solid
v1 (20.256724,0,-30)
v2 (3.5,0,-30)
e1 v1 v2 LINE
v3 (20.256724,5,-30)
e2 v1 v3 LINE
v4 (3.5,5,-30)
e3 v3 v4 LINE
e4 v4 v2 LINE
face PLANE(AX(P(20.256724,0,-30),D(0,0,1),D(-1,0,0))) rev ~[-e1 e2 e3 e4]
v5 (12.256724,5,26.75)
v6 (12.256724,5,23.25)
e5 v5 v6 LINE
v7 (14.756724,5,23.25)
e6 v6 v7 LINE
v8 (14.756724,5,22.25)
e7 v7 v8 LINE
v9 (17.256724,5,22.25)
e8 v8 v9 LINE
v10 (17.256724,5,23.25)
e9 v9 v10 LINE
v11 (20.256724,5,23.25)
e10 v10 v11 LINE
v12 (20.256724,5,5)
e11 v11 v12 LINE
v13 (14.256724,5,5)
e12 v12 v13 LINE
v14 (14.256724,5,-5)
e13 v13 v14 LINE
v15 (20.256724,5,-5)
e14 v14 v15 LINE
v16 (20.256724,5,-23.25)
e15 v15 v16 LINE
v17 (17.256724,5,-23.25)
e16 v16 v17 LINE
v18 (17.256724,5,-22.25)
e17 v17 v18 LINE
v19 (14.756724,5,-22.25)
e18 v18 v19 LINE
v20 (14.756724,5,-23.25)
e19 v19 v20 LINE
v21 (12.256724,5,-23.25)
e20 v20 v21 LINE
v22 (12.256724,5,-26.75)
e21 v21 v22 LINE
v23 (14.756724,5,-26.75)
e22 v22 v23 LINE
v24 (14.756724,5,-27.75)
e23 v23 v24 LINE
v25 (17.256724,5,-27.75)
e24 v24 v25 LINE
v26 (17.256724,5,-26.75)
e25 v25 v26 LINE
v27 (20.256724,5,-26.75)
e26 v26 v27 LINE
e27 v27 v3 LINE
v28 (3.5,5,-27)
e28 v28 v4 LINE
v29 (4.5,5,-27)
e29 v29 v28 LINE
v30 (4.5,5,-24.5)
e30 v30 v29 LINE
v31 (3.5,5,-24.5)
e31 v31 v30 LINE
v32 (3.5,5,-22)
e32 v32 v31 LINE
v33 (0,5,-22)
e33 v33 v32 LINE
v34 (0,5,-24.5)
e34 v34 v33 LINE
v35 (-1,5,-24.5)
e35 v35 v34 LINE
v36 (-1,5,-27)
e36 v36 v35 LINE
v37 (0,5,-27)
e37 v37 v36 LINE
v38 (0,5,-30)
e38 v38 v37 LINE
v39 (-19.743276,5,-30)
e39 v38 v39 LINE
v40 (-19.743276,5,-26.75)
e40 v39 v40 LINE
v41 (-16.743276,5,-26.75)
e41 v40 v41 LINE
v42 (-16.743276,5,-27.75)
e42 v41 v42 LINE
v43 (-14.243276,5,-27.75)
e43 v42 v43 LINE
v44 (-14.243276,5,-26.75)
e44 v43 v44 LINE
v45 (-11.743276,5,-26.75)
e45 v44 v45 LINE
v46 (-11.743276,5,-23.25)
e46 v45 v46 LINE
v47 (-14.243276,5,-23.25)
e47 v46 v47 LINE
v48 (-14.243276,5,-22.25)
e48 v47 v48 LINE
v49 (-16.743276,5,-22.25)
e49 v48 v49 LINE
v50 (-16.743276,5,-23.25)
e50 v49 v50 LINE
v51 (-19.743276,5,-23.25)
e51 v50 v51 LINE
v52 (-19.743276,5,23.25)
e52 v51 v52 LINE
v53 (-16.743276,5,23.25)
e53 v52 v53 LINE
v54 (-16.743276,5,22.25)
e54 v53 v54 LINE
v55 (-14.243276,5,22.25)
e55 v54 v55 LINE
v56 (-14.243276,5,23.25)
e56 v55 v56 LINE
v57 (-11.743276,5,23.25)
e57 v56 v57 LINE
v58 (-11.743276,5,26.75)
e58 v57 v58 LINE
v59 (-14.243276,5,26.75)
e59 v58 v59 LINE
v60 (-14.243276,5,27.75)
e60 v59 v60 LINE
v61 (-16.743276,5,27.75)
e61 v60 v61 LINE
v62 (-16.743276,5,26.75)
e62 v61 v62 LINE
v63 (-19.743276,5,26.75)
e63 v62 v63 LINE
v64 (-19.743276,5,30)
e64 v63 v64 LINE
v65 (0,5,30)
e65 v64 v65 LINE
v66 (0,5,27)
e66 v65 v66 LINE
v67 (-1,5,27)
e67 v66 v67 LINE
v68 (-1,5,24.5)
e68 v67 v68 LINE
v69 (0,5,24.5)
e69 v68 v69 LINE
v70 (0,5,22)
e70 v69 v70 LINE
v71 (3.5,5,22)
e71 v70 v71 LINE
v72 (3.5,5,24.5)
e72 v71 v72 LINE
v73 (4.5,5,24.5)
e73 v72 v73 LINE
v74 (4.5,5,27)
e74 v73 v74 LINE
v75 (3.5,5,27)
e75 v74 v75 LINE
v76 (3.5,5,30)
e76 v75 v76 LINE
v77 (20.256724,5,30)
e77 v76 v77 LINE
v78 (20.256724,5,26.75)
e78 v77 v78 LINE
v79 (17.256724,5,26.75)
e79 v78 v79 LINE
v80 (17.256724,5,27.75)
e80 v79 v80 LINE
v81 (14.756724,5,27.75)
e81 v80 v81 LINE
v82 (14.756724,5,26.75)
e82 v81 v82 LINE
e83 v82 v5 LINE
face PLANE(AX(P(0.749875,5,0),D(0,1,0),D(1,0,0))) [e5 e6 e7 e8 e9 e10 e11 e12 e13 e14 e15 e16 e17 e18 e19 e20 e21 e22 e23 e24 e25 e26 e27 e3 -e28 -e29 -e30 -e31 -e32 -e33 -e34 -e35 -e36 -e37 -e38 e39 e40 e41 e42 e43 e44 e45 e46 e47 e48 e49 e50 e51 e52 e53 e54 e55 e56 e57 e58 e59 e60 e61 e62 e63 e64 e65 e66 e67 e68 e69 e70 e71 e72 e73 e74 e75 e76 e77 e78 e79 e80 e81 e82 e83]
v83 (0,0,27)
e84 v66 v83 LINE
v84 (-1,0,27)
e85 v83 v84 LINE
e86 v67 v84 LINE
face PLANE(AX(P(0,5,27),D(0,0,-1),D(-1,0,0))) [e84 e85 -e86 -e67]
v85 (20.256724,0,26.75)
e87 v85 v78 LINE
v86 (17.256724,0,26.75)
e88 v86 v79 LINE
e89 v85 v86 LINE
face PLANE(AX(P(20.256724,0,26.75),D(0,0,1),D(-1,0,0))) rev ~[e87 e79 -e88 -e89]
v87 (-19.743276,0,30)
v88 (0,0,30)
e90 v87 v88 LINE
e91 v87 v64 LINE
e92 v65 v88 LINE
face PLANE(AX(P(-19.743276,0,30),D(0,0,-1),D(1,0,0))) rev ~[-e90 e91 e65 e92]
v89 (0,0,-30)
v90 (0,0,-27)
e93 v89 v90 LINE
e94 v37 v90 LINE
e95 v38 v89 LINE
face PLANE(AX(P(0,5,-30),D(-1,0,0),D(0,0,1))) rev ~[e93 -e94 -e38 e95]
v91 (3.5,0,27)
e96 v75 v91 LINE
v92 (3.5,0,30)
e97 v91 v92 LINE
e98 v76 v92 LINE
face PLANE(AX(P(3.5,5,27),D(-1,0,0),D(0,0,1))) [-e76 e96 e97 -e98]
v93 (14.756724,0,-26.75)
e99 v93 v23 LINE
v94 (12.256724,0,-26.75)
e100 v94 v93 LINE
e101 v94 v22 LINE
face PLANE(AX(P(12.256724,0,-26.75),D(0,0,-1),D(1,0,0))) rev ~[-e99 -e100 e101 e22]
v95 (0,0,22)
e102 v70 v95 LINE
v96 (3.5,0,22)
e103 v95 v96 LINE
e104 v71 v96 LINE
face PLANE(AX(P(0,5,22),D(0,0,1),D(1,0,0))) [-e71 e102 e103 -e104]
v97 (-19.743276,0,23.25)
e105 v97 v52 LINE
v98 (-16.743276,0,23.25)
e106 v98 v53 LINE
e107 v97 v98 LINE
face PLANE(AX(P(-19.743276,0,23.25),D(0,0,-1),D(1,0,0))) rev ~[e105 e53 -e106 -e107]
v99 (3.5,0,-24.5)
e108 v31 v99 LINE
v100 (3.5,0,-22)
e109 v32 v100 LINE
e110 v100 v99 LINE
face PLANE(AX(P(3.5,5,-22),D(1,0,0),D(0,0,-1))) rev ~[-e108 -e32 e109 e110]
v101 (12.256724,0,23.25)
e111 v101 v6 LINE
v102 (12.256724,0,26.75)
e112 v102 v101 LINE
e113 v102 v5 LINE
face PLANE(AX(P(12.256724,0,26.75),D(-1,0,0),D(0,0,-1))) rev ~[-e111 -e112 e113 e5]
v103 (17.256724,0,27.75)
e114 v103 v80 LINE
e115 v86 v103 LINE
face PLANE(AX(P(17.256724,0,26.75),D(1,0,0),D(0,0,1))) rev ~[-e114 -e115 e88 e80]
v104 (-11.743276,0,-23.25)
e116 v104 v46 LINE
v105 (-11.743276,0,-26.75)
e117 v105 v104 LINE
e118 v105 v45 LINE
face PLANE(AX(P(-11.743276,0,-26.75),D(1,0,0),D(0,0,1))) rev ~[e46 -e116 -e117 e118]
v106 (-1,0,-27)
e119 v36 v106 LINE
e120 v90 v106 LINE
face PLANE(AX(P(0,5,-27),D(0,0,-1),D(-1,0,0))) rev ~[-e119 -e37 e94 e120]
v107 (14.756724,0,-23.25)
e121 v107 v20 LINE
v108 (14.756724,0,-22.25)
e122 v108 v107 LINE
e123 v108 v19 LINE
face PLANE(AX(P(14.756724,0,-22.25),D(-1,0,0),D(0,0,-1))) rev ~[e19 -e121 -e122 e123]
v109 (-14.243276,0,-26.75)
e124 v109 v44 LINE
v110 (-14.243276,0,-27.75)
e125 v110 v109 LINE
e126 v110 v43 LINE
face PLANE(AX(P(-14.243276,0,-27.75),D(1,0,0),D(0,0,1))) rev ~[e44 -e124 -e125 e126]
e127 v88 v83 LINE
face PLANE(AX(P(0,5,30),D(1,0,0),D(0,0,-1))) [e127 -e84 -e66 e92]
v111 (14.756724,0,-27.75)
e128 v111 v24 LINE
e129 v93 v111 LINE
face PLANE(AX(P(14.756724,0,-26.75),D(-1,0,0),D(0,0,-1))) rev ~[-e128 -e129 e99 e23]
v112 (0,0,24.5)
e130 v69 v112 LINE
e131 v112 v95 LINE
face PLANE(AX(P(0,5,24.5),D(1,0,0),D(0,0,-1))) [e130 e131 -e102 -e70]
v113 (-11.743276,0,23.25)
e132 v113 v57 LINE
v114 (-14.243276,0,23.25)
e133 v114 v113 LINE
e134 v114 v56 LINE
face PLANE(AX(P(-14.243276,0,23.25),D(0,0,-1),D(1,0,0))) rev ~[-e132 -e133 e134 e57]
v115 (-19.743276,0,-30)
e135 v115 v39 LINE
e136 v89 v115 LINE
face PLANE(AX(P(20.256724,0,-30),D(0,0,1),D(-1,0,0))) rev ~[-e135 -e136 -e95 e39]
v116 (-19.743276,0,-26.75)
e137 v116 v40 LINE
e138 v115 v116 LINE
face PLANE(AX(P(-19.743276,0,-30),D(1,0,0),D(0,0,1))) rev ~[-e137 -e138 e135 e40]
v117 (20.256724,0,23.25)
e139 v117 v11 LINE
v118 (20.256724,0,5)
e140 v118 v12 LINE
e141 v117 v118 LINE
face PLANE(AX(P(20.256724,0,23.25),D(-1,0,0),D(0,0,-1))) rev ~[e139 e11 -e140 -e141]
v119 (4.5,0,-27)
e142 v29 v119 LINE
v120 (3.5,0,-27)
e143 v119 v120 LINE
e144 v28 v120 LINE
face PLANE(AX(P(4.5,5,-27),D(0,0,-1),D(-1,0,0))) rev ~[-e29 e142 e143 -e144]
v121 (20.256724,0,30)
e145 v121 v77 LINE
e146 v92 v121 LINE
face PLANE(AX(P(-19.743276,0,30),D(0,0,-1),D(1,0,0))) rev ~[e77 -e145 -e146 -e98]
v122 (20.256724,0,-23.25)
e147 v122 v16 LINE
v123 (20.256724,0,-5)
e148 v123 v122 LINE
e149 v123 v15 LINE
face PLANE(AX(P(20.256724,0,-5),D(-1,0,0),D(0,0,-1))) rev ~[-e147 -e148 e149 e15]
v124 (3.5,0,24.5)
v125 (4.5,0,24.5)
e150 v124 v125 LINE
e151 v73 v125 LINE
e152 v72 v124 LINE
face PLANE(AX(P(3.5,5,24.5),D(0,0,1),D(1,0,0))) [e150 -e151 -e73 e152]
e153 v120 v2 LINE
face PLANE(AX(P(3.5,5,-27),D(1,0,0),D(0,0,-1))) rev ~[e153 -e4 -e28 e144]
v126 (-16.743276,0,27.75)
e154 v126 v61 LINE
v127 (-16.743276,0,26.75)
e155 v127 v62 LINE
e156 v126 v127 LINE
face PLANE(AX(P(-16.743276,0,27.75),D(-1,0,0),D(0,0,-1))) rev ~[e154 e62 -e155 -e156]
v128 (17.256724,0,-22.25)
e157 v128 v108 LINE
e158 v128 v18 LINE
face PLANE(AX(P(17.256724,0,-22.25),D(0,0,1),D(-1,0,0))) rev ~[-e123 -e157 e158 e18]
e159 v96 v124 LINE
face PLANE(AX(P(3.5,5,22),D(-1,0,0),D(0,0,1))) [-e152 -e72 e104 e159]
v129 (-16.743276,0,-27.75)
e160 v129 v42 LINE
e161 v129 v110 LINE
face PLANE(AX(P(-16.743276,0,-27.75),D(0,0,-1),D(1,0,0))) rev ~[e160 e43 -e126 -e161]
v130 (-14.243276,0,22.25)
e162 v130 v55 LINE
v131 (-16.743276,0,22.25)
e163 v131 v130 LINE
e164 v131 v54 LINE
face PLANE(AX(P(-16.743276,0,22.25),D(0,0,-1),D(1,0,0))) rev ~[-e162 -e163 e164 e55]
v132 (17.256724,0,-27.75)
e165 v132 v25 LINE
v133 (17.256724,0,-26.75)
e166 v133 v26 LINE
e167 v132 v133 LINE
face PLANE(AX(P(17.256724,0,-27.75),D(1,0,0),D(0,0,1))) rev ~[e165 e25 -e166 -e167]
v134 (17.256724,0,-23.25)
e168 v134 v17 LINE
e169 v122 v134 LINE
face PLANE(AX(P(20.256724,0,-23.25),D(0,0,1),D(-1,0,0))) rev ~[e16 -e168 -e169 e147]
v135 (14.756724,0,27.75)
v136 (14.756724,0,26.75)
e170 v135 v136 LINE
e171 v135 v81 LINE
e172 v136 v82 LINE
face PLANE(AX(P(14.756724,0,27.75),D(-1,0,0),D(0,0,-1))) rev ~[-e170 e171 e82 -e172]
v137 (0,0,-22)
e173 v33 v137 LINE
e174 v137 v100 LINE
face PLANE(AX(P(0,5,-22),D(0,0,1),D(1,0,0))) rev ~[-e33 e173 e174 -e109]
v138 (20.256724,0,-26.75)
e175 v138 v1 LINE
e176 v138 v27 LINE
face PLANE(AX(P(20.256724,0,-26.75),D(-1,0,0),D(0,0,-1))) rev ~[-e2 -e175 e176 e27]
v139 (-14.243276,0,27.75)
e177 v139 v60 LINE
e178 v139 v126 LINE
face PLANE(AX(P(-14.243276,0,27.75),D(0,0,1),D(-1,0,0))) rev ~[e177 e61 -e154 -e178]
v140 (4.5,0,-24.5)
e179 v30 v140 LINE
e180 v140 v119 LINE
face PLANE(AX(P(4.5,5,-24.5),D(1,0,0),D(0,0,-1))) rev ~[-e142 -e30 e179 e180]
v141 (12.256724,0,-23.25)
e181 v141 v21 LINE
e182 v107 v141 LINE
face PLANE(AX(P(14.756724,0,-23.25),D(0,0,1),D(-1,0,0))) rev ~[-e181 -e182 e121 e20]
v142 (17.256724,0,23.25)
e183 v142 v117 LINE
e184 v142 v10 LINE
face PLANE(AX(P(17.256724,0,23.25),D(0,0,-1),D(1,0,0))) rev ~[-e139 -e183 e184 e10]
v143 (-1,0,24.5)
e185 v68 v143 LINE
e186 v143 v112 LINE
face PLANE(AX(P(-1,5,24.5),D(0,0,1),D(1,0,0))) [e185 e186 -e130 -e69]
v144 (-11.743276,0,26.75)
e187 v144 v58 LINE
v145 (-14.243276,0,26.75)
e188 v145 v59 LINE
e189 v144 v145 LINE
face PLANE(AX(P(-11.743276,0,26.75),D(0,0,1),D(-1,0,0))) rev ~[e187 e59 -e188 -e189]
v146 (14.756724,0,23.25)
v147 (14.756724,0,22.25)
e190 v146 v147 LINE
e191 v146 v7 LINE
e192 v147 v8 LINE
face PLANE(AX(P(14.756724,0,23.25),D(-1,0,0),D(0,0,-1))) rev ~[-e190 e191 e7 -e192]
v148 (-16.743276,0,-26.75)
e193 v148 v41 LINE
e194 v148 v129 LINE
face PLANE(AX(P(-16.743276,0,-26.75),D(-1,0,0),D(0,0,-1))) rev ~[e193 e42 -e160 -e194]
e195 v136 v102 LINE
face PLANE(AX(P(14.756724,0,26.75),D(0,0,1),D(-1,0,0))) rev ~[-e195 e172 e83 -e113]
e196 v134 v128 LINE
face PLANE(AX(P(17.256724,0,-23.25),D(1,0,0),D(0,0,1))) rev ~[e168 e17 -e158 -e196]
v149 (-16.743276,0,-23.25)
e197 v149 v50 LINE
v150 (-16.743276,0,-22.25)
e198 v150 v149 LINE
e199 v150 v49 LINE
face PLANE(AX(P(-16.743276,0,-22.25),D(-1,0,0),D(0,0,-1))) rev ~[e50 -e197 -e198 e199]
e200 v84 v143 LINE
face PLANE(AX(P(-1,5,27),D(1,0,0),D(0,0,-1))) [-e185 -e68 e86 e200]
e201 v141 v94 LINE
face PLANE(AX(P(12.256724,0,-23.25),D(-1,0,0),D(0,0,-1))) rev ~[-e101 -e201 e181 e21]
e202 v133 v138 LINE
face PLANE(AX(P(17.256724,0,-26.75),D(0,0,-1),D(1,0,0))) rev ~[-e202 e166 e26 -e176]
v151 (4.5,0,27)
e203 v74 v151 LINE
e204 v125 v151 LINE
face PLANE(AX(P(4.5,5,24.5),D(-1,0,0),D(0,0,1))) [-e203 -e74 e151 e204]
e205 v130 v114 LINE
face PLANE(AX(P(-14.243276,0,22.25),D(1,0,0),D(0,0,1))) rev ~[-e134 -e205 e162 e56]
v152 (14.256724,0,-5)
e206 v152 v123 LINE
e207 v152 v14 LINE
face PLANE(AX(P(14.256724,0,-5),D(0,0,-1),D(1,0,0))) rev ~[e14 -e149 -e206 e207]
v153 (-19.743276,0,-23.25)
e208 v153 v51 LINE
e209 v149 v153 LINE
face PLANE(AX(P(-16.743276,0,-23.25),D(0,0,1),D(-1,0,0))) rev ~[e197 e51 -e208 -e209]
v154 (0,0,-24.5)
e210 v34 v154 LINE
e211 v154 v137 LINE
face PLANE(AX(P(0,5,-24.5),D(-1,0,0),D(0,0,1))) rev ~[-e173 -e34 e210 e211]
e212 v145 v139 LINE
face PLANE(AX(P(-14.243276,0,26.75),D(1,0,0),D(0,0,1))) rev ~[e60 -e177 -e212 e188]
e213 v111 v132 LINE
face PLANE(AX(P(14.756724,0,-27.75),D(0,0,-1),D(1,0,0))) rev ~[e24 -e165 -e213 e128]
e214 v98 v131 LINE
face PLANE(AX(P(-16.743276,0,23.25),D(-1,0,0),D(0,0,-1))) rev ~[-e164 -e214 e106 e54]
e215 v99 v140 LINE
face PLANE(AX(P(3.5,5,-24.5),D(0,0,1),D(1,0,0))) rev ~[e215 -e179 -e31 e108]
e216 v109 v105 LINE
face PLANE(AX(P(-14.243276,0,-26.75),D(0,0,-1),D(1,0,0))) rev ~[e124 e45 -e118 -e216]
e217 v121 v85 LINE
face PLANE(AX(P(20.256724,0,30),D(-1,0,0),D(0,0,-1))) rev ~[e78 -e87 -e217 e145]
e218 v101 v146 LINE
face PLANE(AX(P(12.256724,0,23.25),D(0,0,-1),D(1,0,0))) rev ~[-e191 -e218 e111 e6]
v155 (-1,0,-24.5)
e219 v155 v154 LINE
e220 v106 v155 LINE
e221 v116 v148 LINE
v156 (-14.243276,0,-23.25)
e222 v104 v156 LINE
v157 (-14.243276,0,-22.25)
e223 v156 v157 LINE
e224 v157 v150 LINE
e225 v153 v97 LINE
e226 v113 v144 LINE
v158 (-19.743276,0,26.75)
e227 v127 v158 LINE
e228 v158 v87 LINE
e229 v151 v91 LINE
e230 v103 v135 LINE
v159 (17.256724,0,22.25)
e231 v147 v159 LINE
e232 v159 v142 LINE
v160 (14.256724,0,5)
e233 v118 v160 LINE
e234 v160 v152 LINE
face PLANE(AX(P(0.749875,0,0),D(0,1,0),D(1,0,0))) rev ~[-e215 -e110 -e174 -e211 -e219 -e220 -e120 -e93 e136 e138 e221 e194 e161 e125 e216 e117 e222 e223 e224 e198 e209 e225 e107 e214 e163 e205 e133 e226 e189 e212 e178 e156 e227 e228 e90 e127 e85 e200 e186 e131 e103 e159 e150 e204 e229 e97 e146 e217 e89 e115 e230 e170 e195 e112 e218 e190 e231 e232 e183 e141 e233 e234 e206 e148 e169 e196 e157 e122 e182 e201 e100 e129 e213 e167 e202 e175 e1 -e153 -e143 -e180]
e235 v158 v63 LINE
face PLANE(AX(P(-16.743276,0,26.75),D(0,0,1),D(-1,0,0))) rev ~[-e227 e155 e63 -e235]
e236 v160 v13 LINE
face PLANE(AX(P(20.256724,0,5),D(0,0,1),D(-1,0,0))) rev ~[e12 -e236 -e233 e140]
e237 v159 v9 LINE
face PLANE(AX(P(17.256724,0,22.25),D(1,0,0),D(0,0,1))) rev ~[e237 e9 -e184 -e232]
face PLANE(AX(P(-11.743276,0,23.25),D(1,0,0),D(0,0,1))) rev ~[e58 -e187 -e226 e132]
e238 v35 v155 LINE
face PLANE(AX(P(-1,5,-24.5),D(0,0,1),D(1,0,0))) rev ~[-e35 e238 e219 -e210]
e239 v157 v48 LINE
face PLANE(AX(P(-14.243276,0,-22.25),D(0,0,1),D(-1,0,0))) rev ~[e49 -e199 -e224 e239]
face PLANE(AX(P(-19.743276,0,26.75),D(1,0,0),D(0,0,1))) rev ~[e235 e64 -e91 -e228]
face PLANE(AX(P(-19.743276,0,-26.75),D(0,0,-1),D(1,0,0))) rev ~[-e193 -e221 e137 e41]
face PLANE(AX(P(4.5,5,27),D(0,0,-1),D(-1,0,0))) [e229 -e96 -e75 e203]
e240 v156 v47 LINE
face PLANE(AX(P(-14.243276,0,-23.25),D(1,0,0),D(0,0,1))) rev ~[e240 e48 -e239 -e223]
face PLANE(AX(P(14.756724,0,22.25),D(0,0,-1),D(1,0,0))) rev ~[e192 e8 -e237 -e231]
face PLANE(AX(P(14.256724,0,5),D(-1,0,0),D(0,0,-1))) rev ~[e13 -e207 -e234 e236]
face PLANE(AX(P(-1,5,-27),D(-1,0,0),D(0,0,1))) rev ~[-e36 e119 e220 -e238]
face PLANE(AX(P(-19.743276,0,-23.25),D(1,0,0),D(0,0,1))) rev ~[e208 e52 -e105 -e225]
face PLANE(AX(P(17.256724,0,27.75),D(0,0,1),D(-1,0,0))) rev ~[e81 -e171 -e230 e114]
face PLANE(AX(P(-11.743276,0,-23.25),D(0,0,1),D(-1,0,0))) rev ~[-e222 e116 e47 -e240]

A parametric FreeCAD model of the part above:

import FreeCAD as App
import Part
import Sketcher
Q = App.Units.Quantity

doc = App.newDocument("Part")
params = doc.addObject("Spreadsheet::Sheet", "Params")
for row, (alias, value) in enumerate([
    ("sketch1_width", "3 mm"),
    ("sketch1_width2", "40 mm"),
    ("sketch1_width3", "6 mm"),
    ("sketch1_height", "1 mm"),
    ("sketch1_height2", "10 mm"),
    ("pad1_length", "5 mm"),
    ("sketch2_width", "1 mm"),
    ("sketch2_height", "3 mm"),
    ("sketch2_width2", "3.5 mm"),
    ("sketch2_height2", "2.5 mm"),
    ("pocket1_length", "5 mm"),
], start=1):
    params.set(f"A{row}", alias)
    params.set(f"B{row}", "=" + value)
    params.setAlias(f"B{row}", alias)

body = doc.addObject("PartDesign::Body", "Body")

sketch1 = body.newObject("Sketcher::SketchObject", "Sketch")
sketch1.AttachmentSupport = (doc.getObject("XZ_Plane"), [""])
sketch1.MapMode = "FlatFace"
sketch1.addGeometry(Part.LineSegment(App.Vector(-19.7, -30, 0), App.Vector(-19.7, -26.8, 0)), False)
sketch1.addGeometry(Part.LineSegment(App.Vector(-19.7, -26.8, 0), App.Vector(-16.7, -26.8, 0)), False)
sketch1.addGeometry(Part.LineSegment(App.Vector(-16.7, -26.8, 0), App.Vector(-16.7, -27.8, 0)), False)
sketch1.addGeometry(Part.LineSegment(App.Vector(-16.7, -27.8, 0), App.Vector(-14.2, -27.8, 0)), False)
sketch1.addGeometry(Part.LineSegment(App.Vector(-14.2, -27.8, 0), App.Vector(-14.2, -26.8, 0)), False)
sketch1.addGeometry(Part.LineSegment(App.Vector(-14.2, -26.8, 0), App.Vector(-11.7, -26.8, 0)), False)
sketch1.addGeometry(Part.LineSegment(App.Vector(-11.7, -26.8, 0), App.Vector(-11.7, -23.2, 0)), False)
sketch1.addGeometry(Part.LineSegment(App.Vector(-11.7, -23.2, 0), App.Vector(-14.2, -23.2, 0)), False)
sketch1.addGeometry(Part.LineSegment(App.Vector(-14.2, -23.2, 0), App.Vector(-14.2, -22.2, 0)), False)
sketch1.addGeometry(Part.LineSegment(App.Vector(-14.2, -22.2, 0), App.Vector(-16.7, -22.2, 0)), False)
sketch1.addGeometry(Part.LineSegment(App.Vector(-16.7, -22.2, 0), App.Vector(-16.7, -23.2, 0)), False)
sketch1.addGeometry(Part.LineSegment(App.Vector(-16.7, -23.2, 0), App.Vector(-19.7, -23.2, 0)), False)
sketch1.addGeometry(Part.LineSegment(App.Vector(-19.7, -23.2, 0), App.Vector(-19.7, 23.2, 0)), False)
sketch1.addGeometry(Part.LineSegment(App.Vector(-19.7, 23.2, 0), App.Vector(-16.7, 23.2, 0)), False)
sketch1.addGeometry(Part.LineSegment(App.Vector(-16.7, 23.2, 0), App.Vector(-16.7, 22.2, 0)), False)
sketch1.addGeometry(Part.LineSegment(App.Vector(-16.7, 22.2, 0), App.Vector(-14.2, 22.2, 0)), False)
sketch1.addGeometry(Part.LineSegment(App.Vector(-14.2, 22.2, 0), App.Vector(-14.2, 23.2, 0)), False)
sketch1.addGeometry(Part.LineSegment(App.Vector(-14.2, 23.2, 0), App.Vector(-11.7, 23.2, 0)), False)
sketch1.addGeometry(Part.LineSegment(App.Vector(-11.7, 23.2, 0), App.Vector(-11.7, 26.8, 0)), False)
sketch1.addGeometry(Part.LineSegment(App.Vector(-11.7, 26.8, 0), App.Vector(-14.2, 26.8, 0)), False)
sketch1.addGeometry(Part.LineSegment(App.Vector(-14.2, 26.8, 0), App.Vector(-14.2, 27.8, 0)), False)
sketch1.addGeometry(Part.LineSegment(App.Vector(-14.2, 27.8, 0), App.Vector(-16.7, 27.8, 0)), False)
sketch1.addGeometry(Part.LineSegment(App.Vector(-16.7, 27.8, 0), App.Vector(-16.7, 26.8, 0)), False)
sketch1.addGeometry(Part.LineSegment(App.Vector(-16.7, 26.8, 0), App.Vector(-19.7, 26.8, 0)), False)
sketch1.addGeometry(Part.LineSegment(App.Vector(-19.7, 26.8, 0), App.Vector(-19.7, 30, 0)), False)
sketch1.addGeometry(Part.LineSegment(App.Vector(-19.7, 30, 0), App.Vector(20.3, 30, 0)), False)
sketch1.addGeometry(Part.LineSegment(App.Vector(20.3, 30, 0), App.Vector(20.3, 26.8, 0)), False)
sketch1.addGeometry(Part.LineSegment(App.Vector(20.3, 26.8, 0), App.Vector(17.3, 26.8, 0)), False)
sketch1.addGeometry(Part.LineSegment(App.Vector(17.3, 26.8, 0), App.Vector(17.3, 27.8, 0)), False)
sketch1.addGeometry(Part.LineSegment(App.Vector(17.3, 27.8, 0), App.Vector(14.8, 27.8, 0)), False)
sketch1.addGeometry(Part.LineSegment(App.Vector(14.8, 27.8, 0), App.Vector(14.8, 26.8, 0)), False)
sketch1.addGeometry(Part.LineSegment(App.Vector(14.8, 26.8, 0), App.Vector(12.3, 26.8, 0)), False)
sketch1.addGeometry(Part.LineSegment(App.Vector(12.3, 26.8, 0), App.Vector(12.3, 23.2, 0)), False)
sketch1.addGeometry(Part.LineSegment(App.Vector(12.3, 23.2, 0), App.Vector(14.8, 23.2, 0)), False)
sketch1.addGeometry(Part.LineSegment(App.Vector(14.8, 23.2, 0), App.Vector(14.8, 22.2, 0)), False)
sketch1.addGeometry(Part.LineSegment(App.Vector(14.8, 22.2, 0), App.Vector(17.3, 22.2, 0)), False)
sketch1.addGeometry(Part.LineSegment(App.Vector(17.3, 22.2, 0), App.Vector(17.3, 23.2, 0)), False)
sketch1.addGeometry(Part.LineSegment(App.Vector(17.3, 23.2, 0), App.Vector(20.3, 23.2, 0)), False)
sketch1.addGeometry(Part.LineSegment(App.Vector(20.3, 23.2, 0), App.Vector(20.3, 5, 0)), False)
sketch1.addGeometry(Part.LineSegment(App.Vector(20.3, 5, 0), App.Vector(14.3, 5, 0)), False)
sketch1.addGeometry(Part.LineSegment(App.Vector(14.3, 5, 0), App.Vector(14.3, -5, 0)), False)
sketch1.addGeometry(Part.LineSegment(App.Vector(14.3, -5, 0), App.Vector(20.3, -5, 0)), False)
sketch1.addGeometry(Part.LineSegment(App.Vector(20.3, -5, 0), App.Vector(20.3, -23.2, 0)), False)
sketch1.addGeometry(Part.LineSegment(App.Vector(20.3, -23.2, 0), App.Vector(17.3, -23.2, 0)), False)
sketch1.addGeometry(Part.LineSegment(App.Vector(17.3, -23.2, 0), App.Vector(17.3, -22.2, 0)), False)
sketch1.addGeometry(Part.LineSegment(App.Vector(17.3, -22.2, 0), App.Vector(14.8, -22.2, 0)), False)
sketch1.addGeometry(Part.LineSegment(App.Vector(14.8, -22.2, 0), App.Vector(14.8, -23.2, 0)), False)
sketch1.addGeometry(Part.LineSegment(App.Vector(14.8, -23.2, 0), App.Vector(12.3, -23.2, 0)), False)
sketch1.addGeometry(Part.LineSegment(App.Vector(12.3, -23.2, 0), App.Vector(12.3, -26.8, 0)), False)
sketch1.addGeometry(Part.LineSegment(App.Vector(12.3, -26.8, 0), App.Vector(14.8, -26.8, 0)), False)
sketch1.addGeometry(Part.LineSegment(App.Vector(14.8, -26.8, 0), App.Vector(14.8, -27.8, 0)), False)
sketch1.addGeometry(Part.LineSegment(App.Vector(14.8, -27.8, 0), App.Vector(17.3, -27.8, 0)), False)
sketch1.addGeometry(Part.LineSegment(App.Vector(17.3, -27.8, 0), App.Vector(17.3, -26.8, 0)), False)
sketch1.addGeometry(Part.LineSegment(App.Vector(17.3, -26.8, 0), App.Vector(20.3, -26.8, 0)), False)
sketch1.addGeometry(Part.LineSegment(App.Vector(20.3, -26.8, 0), App.Vector(20.3, -30, 0)), False)
sketch1.addGeometry(Part.LineSegment(App.Vector(20.3, -30, 0), App.Vector(-19.7, -30, 0)), False)
sketch1.addConstraint(Sketcher.Constraint("Coincident", 0, 2, 1, 1))
sketch1.addConstraint(Sketcher.Constraint("Coincident", 1, 2, 2, 1))
sketch1.addConstraint(Sketcher.Constraint("Coincident", 2, 2, 3, 1))
sketch1.addConstraint(Sketcher.Constraint("Coincident", 3, 2, 4, 1))
sketch1.addConstraint(Sketcher.Constraint("Coincident", 4, 2, 5, 1))
sketch1.addConstraint(Sketcher.Constraint("Coincident", 5, 2, 6, 1))
sketch1.addConstraint(Sketcher.Constraint("Coincident", 6, 2, 7, 1))
sketch1.addConstraint(Sketcher.Constraint("Coincident", 7, 2, 8, 1))
sketch1.addConstraint(Sketcher.Constraint("Coincident", 8, 2, 9, 1))
sketch1.addConstraint(Sketcher.Constraint("Coincident", 9, 2, 10, 1))
sketch1.addConstraint(Sketcher.Constraint("Coincident", 10, 2, 11, 1))
sketch1.addConstraint(Sketcher.Constraint("Coincident", 11, 2, 12, 1))
sketch1.addConstraint(Sketcher.Constraint("Coincident", 12, 2, 13, 1))
sketch1.addConstraint(Sketcher.Constraint("Coincident", 13, 2, 14, 1))
sketch1.addConstraint(Sketcher.Constraint("Coincident", 14, 2, 15, 1))
sketch1.addConstraint(Sketcher.Constraint("Coincident", 15, 2, 16, 1))
sketch1.addConstraint(Sketcher.Constraint("Coincident", 16, 2, 17, 1))
sketch1.addConstraint(Sketcher.Constraint("Coincident", 17, 2, 18, 1))
sketch1.addConstraint(Sketcher.Constraint("Coincident", 18, 2, 19, 1))
sketch1.addConstraint(Sketcher.Constraint("Coincident", 19, 2, 20, 1))
sketch1.addConstraint(Sketcher.Constraint("Coincident", 20, 2, 21, 1))
sketch1.addConstraint(Sketcher.Constraint("Coincident", 21, 2, 22, 1))
sketch1.addConstraint(Sketcher.Constraint("Coincident", 22, 2, 23, 1))
sketch1.addConstraint(Sketcher.Constraint("Coincident", 23, 2, 24, 1))
sketch1.addConstraint(Sketcher.Constraint("Coincident", 24, 2, 25, 1))
sketch1.addConstraint(Sketcher.Constraint("Coincident", 25, 2, 26, 1))
sketch1.addConstraint(Sketcher.Constraint("Coincident", 26, 2, 27, 1))
sketch1.addConstraint(Sketcher.Constraint("Coincident", 27, 2, 28, 1))
sketch1.addConstraint(Sketcher.Constraint("Coincident", 28, 2, 29, 1))
sketch1.addConstraint(Sketcher.Constraint("Coincident", 29, 2, 30, 1))
sketch1.addConstraint(Sketcher.Constraint("Coincident", 30, 2, 31, 1))
sketch1.addConstraint(Sketcher.Constraint("Coincident", 31, 2, 32, 1))
sketch1.addConstraint(Sketcher.Constraint("Coincident", 32, 2, 33, 1))
sketch1.addConstraint(Sketcher.Constraint("Coincident", 33, 2, 34, 1))
sketch1.addConstraint(Sketcher.Constraint("Coincident", 34, 2, 35, 1))
sketch1.addConstraint(Sketcher.Constraint("Coincident", 35, 2, 36, 1))
sketch1.addConstraint(Sketcher.Constraint("Coincident", 36, 2, 37, 1))
sketch1.addConstraint(Sketcher.Constraint("Coincident", 37, 2, 38, 1))
sketch1.addConstraint(Sketcher.Constraint("Coincident", 38, 2, 39, 1))
sketch1.addConstraint(Sketcher.Constraint("Coincident", 39, 2, 40, 1))
sketch1.addConstraint(Sketcher.Constraint("Coincident", 40, 2, 41, 1))
sketch1.addConstraint(Sketcher.Constraint("Coincident", 41, 2, 42, 1))
sketch1.addConstraint(Sketcher.Constraint("Coincident", 42, 2, 43, 1))
sketch1.addConstraint(Sketcher.Constraint("Coincident", 43, 2, 44, 1))
sketch1.addConstraint(Sketcher.Constraint("Coincident", 44, 2, 45, 1))
sketch1.addConstraint(Sketcher.Constraint("Coincident", 45, 2, 46, 1))
sketch1.addConstraint(Sketcher.Constraint("Coincident", 46, 2, 47, 1))
sketch1.addConstraint(Sketcher.Constraint("Coincident", 47, 2, 48, 1))
sketch1.addConstraint(Sketcher.Constraint("Coincident", 48, 2, 49, 1))
sketch1.addConstraint(Sketcher.Constraint("Coincident", 49, 2, 50, 1))
sketch1.addConstraint(Sketcher.Constraint("Coincident", 50, 2, 51, 1))
sketch1.addConstraint(Sketcher.Constraint("Coincident", 51, 2, 52, 1))
sketch1.addConstraint(Sketcher.Constraint("Coincident", 52, 2, 53, 1))
sketch1.addConstraint(Sketcher.Constraint("Coincident", 53, 2, 54, 1))
sketch1.addConstraint(Sketcher.Constraint("Coincident", 54, 2, 55, 1))
sketch1.addConstraint(Sketcher.Constraint("Coincident", 55, 2, 0, 1))
sketch1.addConstraint(Sketcher.Constraint("Vertical", 0))
sketch1.addConstraint(Sketcher.Constraint("Horizontal", 1))
sketch1.addConstraint(Sketcher.Constraint("Vertical", 2))
sketch1.addConstraint(Sketcher.Constraint("Horizontal", 3))
sketch1.addConstraint(Sketcher.Constraint("Vertical", 4))
sketch1.addConstraint(Sketcher.Constraint("Horizontal", 5))
sketch1.addConstraint(Sketcher.Constraint("Vertical", 6))
sketch1.addConstraint(Sketcher.Constraint("Horizontal", 7))
sketch1.addConstraint(Sketcher.Constraint("Vertical", 8))
sketch1.addConstraint(Sketcher.Constraint("Horizontal", 9))
sketch1.addConstraint(Sketcher.Constraint("Vertical", 10))
sketch1.addConstraint(Sketcher.Constraint("Horizontal", 11))
sketch1.addConstraint(Sketcher.Constraint("Vertical", 12))
sketch1.addConstraint(Sketcher.Constraint("Horizontal", 13))
sketch1.addConstraint(Sketcher.Constraint("Vertical", 14))
sketch1.addConstraint(Sketcher.Constraint("Horizontal", 15))
sketch1.addConstraint(Sketcher.Constraint("Vertical", 16))
sketch1.addConstraint(Sketcher.Constraint("Horizontal", 17))
sketch1.addConstraint(Sketcher.Constraint("Vertical", 18))
sketch1.addConstraint(Sketcher.Constraint("Horizontal", 19))
sketch1.addConstraint(Sketcher.Constraint("Vertical", 20))
sketch1.addConstraint(Sketcher.Constraint("Horizontal", 21))
sketch1.addConstraint(Sketcher.Constraint("Vertical", 22))
sketch1.addConstraint(Sketcher.Constraint("Horizontal", 23))
sketch1.addConstraint(Sketcher.Constraint("Vertical", 24))
sketch1.addConstraint(Sketcher.Constraint("Horizontal", 25))
sketch1.addConstraint(Sketcher.Constraint("Vertical", 26))
sketch1.addConstraint(Sketcher.Constraint("Horizontal", 27))
sketch1.addConstraint(Sketcher.Constraint("Vertical", 28))
sketch1.addConstraint(Sketcher.Constraint("Horizontal", 29))
sketch1.addConstraint(Sketcher.Constraint("Vertical", 30))
sketch1.addConstraint(Sketcher.Constraint("Horizontal", 31))
sketch1.addConstraint(Sketcher.Constraint("Vertical", 32))
sketch1.addConstraint(Sketcher.Constraint("Horizontal", 33))
sketch1.addConstraint(Sketcher.Constraint("Vertical", 34))
sketch1.addConstraint(Sketcher.Constraint("Horizontal", 35))
sketch1.addConstraint(Sketcher.Constraint("Vertical", 36))
sketch1.addConstraint(Sketcher.Constraint("Horizontal", 37))
sketch1.addConstraint(Sketcher.Constraint("Vertical", 38))
sketch1.addConstraint(Sketcher.Constraint("Horizontal", 39))
sketch1.addConstraint(Sketcher.Constraint("Vertical", 40))
sketch1.addConstraint(Sketcher.Constraint("Horizontal", 41))
sketch1.addConstraint(Sketcher.Constraint("Vertical", 42))
sketch1.addConstraint(Sketcher.Constraint("Horizontal", 43))
sketch1.addConstraint(Sketcher.Constraint("Vertical", 44))
sketch1.addConstraint(Sketcher.Constraint("Horizontal", 45))
sketch1.addConstraint(Sketcher.Constraint("Vertical", 46))
sketch1.addConstraint(Sketcher.Constraint("Horizontal", 47))
sketch1.addConstraint(Sketcher.Constraint("Vertical", 48))
sketch1.addConstraint(Sketcher.Constraint("Horizontal", 49))
sketch1.addConstraint(Sketcher.Constraint("Vertical", 50))
sketch1.addConstraint(Sketcher.Constraint("Horizontal", 51))
sketch1.addConstraint(Sketcher.Constraint("Vertical", 52))
sketch1.addConstraint(Sketcher.Constraint("Horizontal", 53))
sketch1.addConstraint(Sketcher.Constraint("Vertical", 54))
sketch1.addConstraint(Sketcher.Constraint("Horizontal", 55))
sketch1.addConstraint(Sketcher.Constraint("Symmetric", 10, 2, 13, 2, -1))
sketch1.addConstraint(Sketcher.Constraint("Symmetric", 8, 2, 15, 2, -1))
sketch1.addConstraint(Sketcher.Constraint("Symmetric", 6, 2, 17, 2, -1))
sketch1.addConstraint(Sketcher.Constraint("Symmetric", 4, 2, 19, 2, -1))
sketch1.addConstraint(Sketcher.Constraint("Symmetric", 2, 2, 21, 2, -1))
sketch1.addConstraint(Sketcher.Constraint("Symmetric", 0, 2, 23, 2, -1))
sketch1.addConstraint(Sketcher.Constraint("Symmetric", 38, 2, 41, 2, -1))
sketch1.addConstraint(Sketcher.Constraint("Symmetric", 36, 2, 43, 2, -1))
sketch1.addConstraint(Sketcher.Constraint("Symmetric", 34, 2, 45, 2, -1))
sketch1.addConstraint(Sketcher.Constraint("Symmetric", 32, 2, 47, 2, -1))
sketch1.addConstraint(Sketcher.Constraint("Symmetric", 30, 2, 49, 2, -1))
sketch1.addConstraint(Sketcher.Constraint("Symmetric", 28, 2, 51, 2, -1))
sketch1.addConstraint(Sketcher.Constraint("Symmetric", 26, 2, 53, 2, -1))
sketch1.addConstraint(Sketcher.Constraint("Horizontal", 1, 2, 4, 2))
sketch1.addConstraint(Sketcher.Constraint("Horizontal", 7, 2, 10, 2))
sketch1.addConstraint(Sketcher.Constraint("Horizontal", 23, 2, 26, 2))
sketch1.addConstraint(Sketcher.Constraint("Horizontal", 21, 2, 28, 2))
sketch1.addConstraint(Sketcher.Constraint("Horizontal", 27, 2, 30, 2))
sketch1.addConstraint(Sketcher.Constraint("Horizontal", 17, 2, 32, 2))
sketch1.addConstraint(Sketcher.Constraint("Horizontal", 15, 2, 34, 2))
sketch1.addConstraint(Sketcher.Constraint("Horizontal", 33, 2, 36, 2))
sketch1.addConstraint(Sketcher.Constraint("Vertical", 4, 2, 7, 2))
sketch1.addConstraint(Sketcher.Constraint("Vertical", 2, 2, 9, 2))
sketch1.addConstraint(Sketcher.Constraint("Vertical", 0, 2, 11, 2))
sketch1.addConstraint(Sketcher.Constraint("Vertical", 30, 2, 33, 2))
sketch1.addConstraint(Sketcher.Constraint("Vertical", 28, 2, 35, 2))
sketch1.addConstraint(Sketcher.Constraint("Vertical", 26, 2, 37, 2))
sketch1.addConstraint(Sketcher.Constraint("Equal", 3, 5))
sketch1.addConstraint(Sketcher.Constraint("Equal", 23, 27))
sketch1.addConstraint(Sketcher.Constraint("Equal", 21, 29))
sketch1.addConstraint(Sketcher.Constraint("Equal", 29, 31))
sketch1.addConstraint(Sketcher.Constraint("Equal", 4, 8))
sketch1.addConstraint(Sketcher.Constraint("Equal", 0, 24))
sketch1.addConstraint(Sketcher.Constraint("DistanceX", 1, 1, 1, 2, Q("3 mm")))
sketch1.addConstraint(Sketcher.Constraint("DistanceX", 25, 1, 25, 2, Q("40 mm")))
sketch1.addConstraint(Sketcher.Constraint("DistanceX", 39, 2, 39, 1, Q("6 mm")))
sketch1.addConstraint(Sketcher.Constraint("DistanceY", 2, 2, 2, 1, Q("1 mm")))
sketch1.addConstraint(Sketcher.Constraint("DistanceY", 40, 2, 40, 1, Q("10 mm")))
sketch1.addConstraint(Sketcher.Constraint("DistanceX", 3, 1, 3, 2, Q("2.5 mm")))
sketch1.addConstraint(Sketcher.Constraint("DistanceY", 6, 1, 6, 2, Q("3.5 mm")))
sketch1.addConstraint(Sketcher.Constraint("DistanceY", 12, 1, 12, 2, Q("46.5 mm")))
sketch1.addConstraint(Sketcher.Constraint("DistanceY", -1, 1, 24, 2, Q("30 mm")))
sketch1.addConstraint(Sketcher.Constraint("DistanceX", 0, 2, -1, 1, Q("19.743276 mm")))
sketch1.setExpression("Constraints[145]", "Params.sketch1_width")
sketch1.setExpression("Constraints[146]", "Params.sketch1_width2")
sketch1.setExpression("Constraints[147]", "Params.sketch1_width3")
sketch1.setExpression("Constraints[148]", "Params.sketch1_height")
sketch1.setExpression("Constraints[149]", "Params.sketch1_height2")
pad1 = body.newObject("PartDesign::Pad", "Pad")
pad1.Profile = sketch1
pad1.setExpression("Length", "Params.pad1_length")
pad1.Reversed = True

sketch2 = body.newObject("Sketcher::SketchObject", "Sketch001")
sketch2.AttachmentSupport = (doc.getObject("XZ_Plane"), [""])
sketch2.MapMode = "FlatFace"
sketch2.AttachmentOffset = App.Placement(App.Vector(0, 0, -5), App.Rotation())
sketch2.addGeometry(Part.LineSegment(App.Vector(0, -30, 0), App.Vector(0, -27, 0)), False)
sketch2.addGeometry(Part.LineSegment(App.Vector(0, -27, 0), App.Vector(-1, -27, 0)), False)
sketch2.addGeometry(Part.LineSegment(App.Vector(-1, -27, 0), App.Vector(-1, -24.5, 0)), False)
sketch2.addGeometry(Part.LineSegment(App.Vector(-1, -24.5, 0), App.Vector(0, -24.5, 0)), False)
sketch2.addGeometry(Part.LineSegment(App.Vector(0, -24.5, 0), App.Vector(0, -22, 0)), False)
sketch2.addGeometry(Part.LineSegment(App.Vector(0, -22, 0), App.Vector(3.5, -22, 0)), False)
sketch2.addGeometry(Part.LineSegment(App.Vector(3.5, -22, 0), App.Vector(3.5, -24.5, 0)), False)
sketch2.addGeometry(Part.LineSegment(App.Vector(3.5, -24.5, 0), App.Vector(4.5, -24.5, 0)), False)
sketch2.addGeometry(Part.LineSegment(App.Vector(4.5, -24.5, 0), App.Vector(4.5, -27, 0)), False)
sketch2.addGeometry(Part.LineSegment(App.Vector(4.5, -27, 0), App.Vector(3.5, -27, 0)), False)
sketch2.addGeometry(Part.LineSegment(App.Vector(3.5, -27, 0), App.Vector(3.5, -30, 0)), False)
sketch2.addGeometry(Part.LineSegment(App.Vector(3.5, -30, 0), App.Vector(0, -30, 0)), False)
sketch2.addGeometry(Part.LineSegment(App.Vector(0, 30, 0), App.Vector(3.5, 30, 0)), False)
sketch2.addGeometry(Part.LineSegment(App.Vector(3.5, 30, 0), App.Vector(3.5, 27, 0)), False)
sketch2.addGeometry(Part.LineSegment(App.Vector(3.5, 27, 0), App.Vector(4.5, 27, 0)), False)
sketch2.addGeometry(Part.LineSegment(App.Vector(4.5, 27, 0), App.Vector(4.5, 24.5, 0)), False)
sketch2.addGeometry(Part.LineSegment(App.Vector(4.5, 24.5, 0), App.Vector(3.5, 24.5, 0)), False)
sketch2.addGeometry(Part.LineSegment(App.Vector(3.5, 24.5, 0), App.Vector(3.5, 22, 0)), False)
sketch2.addGeometry(Part.LineSegment(App.Vector(3.5, 22, 0), App.Vector(0, 22, 0)), False)
sketch2.addGeometry(Part.LineSegment(App.Vector(0, 22, 0), App.Vector(0, 24.5, 0)), False)
sketch2.addGeometry(Part.LineSegment(App.Vector(0, 24.5, 0), App.Vector(-1, 24.5, 0)), False)
sketch2.addGeometry(Part.LineSegment(App.Vector(-1, 24.5, 0), App.Vector(-1, 27, 0)), False)
sketch2.addGeometry(Part.LineSegment(App.Vector(-1, 27, 0), App.Vector(0, 27, 0)), False)
sketch2.addGeometry(Part.LineSegment(App.Vector(0, 27, 0), App.Vector(0, 30, 0)), False)
sketch2.addConstraint(Sketcher.Constraint("Coincident", 0, 2, 1, 1))
sketch2.addConstraint(Sketcher.Constraint("Coincident", 1, 2, 2, 1))
sketch2.addConstraint(Sketcher.Constraint("Coincident", 2, 2, 3, 1))
sketch2.addConstraint(Sketcher.Constraint("Coincident", 3, 2, 4, 1))
sketch2.addConstraint(Sketcher.Constraint("Coincident", 4, 2, 5, 1))
sketch2.addConstraint(Sketcher.Constraint("Coincident", 5, 2, 6, 1))
sketch2.addConstraint(Sketcher.Constraint("Coincident", 6, 2, 7, 1))
sketch2.addConstraint(Sketcher.Constraint("Coincident", 7, 2, 8, 1))
sketch2.addConstraint(Sketcher.Constraint("Coincident", 8, 2, 9, 1))
sketch2.addConstraint(Sketcher.Constraint("Coincident", 9, 2, 10, 1))
sketch2.addConstraint(Sketcher.Constraint("Coincident", 10, 2, 11, 1))
sketch2.addConstraint(Sketcher.Constraint("Coincident", 11, 2, 0, 1))
sketch2.addConstraint(Sketcher.Constraint("Coincident", 12, 2, 13, 1))
sketch2.addConstraint(Sketcher.Constraint("Coincident", 13, 2, 14, 1))
sketch2.addConstraint(Sketcher.Constraint("Coincident", 14, 2, 15, 1))
sketch2.addConstraint(Sketcher.Constraint("Coincident", 15, 2, 16, 1))
sketch2.addConstraint(Sketcher.Constraint("Coincident", 16, 2, 17, 1))
sketch2.addConstraint(Sketcher.Constraint("Coincident", 17, 2, 18, 1))
sketch2.addConstraint(Sketcher.Constraint("Coincident", 18, 2, 19, 1))
sketch2.addConstraint(Sketcher.Constraint("Coincident", 19, 2, 20, 1))
sketch2.addConstraint(Sketcher.Constraint("Coincident", 20, 2, 21, 1))
sketch2.addConstraint(Sketcher.Constraint("Coincident", 21, 2, 22, 1))
sketch2.addConstraint(Sketcher.Constraint("Coincident", 22, 2, 23, 1))
sketch2.addConstraint(Sketcher.Constraint("Coincident", 23, 2, 12, 1))
sketch2.addConstraint(Sketcher.Constraint("Vertical", 0))
sketch2.addConstraint(Sketcher.Constraint("Horizontal", 1))
sketch2.addConstraint(Sketcher.Constraint("Vertical", 2))
sketch2.addConstraint(Sketcher.Constraint("Horizontal", 3))
sketch2.addConstraint(Sketcher.Constraint("Vertical", 4))
sketch2.addConstraint(Sketcher.Constraint("Horizontal", 5))
sketch2.addConstraint(Sketcher.Constraint("Vertical", 6))
sketch2.addConstraint(Sketcher.Constraint("Horizontal", 7))
sketch2.addConstraint(Sketcher.Constraint("Vertical", 8))
sketch2.addConstraint(Sketcher.Constraint("Horizontal", 9))
sketch2.addConstraint(Sketcher.Constraint("Vertical", 10))
sketch2.addConstraint(Sketcher.Constraint("Horizontal", 11))
sketch2.addConstraint(Sketcher.Constraint("Horizontal", 12))
sketch2.addConstraint(Sketcher.Constraint("Vertical", 13))
sketch2.addConstraint(Sketcher.Constraint("Horizontal", 14))
sketch2.addConstraint(Sketcher.Constraint("Vertical", 15))
sketch2.addConstraint(Sketcher.Constraint("Horizontal", 16))
sketch2.addConstraint(Sketcher.Constraint("Vertical", 17))
sketch2.addConstraint(Sketcher.Constraint("Horizontal", 18))
sketch2.addConstraint(Sketcher.Constraint("Vertical", 19))
sketch2.addConstraint(Sketcher.Constraint("Horizontal", 20))
sketch2.addConstraint(Sketcher.Constraint("Vertical", 21))
sketch2.addConstraint(Sketcher.Constraint("Horizontal", 22))
sketch2.addConstraint(Sketcher.Constraint("Vertical", 23))
sketch2.addConstraint(Sketcher.Constraint("Symmetric", 4, 2, 18, 2, -1, 1))
sketch2.addConstraint(Sketcher.Constraint("Symmetric", 0, 2, 22, 2, -1, 1))
sketch2.addConstraint(Sketcher.Constraint("Symmetric", 10, 2, 12, 2, -1))
sketch2.addConstraint(Sketcher.Constraint("Symmetric", 8, 2, 14, 2, -1))
sketch2.addConstraint(Sketcher.Constraint("Symmetric", 6, 2, 16, 2, -1))
sketch2.addConstraint(Sketcher.Constraint("Symmetric", 3, 2, 19, 2, -1))
sketch2.addConstraint(Sketcher.Constraint("PointOnObject", 0, 2, -2))
sketch2.addConstraint(Sketcher.Constraint("Horizontal", 3, 2, 6, 2))
sketch2.addConstraint(Sketcher.Constraint("Horizontal", 1, 2, 8, 2))
sketch2.addConstraint(Sketcher.Constraint("Vertical", 6, 2, 9, 2))
sketch2.addConstraint(Sketcher.Constraint("Vertical", 2, 2, 20, 2))
sketch2.addConstraint(Sketcher.Constraint("Equal", 3, 7))
sketch2.addConstraint(Sketcher.Constraint("Equal", 2, 4))
sketch2.addConstraint(Sketcher.Constraint("DistanceX", 1, 2, 1, 1, Q("1 mm")))
sketch2.addConstraint(Sketcher.Constraint("DistanceY", 0, 1, 0, 2, Q("3 mm")))
sketch2.addConstraint(Sketcher.Constraint("DistanceX", 5, 1, 5, 2, Q("3.5 mm")))
sketch2.addConstraint(Sketcher.Constraint("DistanceY", 2, 1, 2, 2, Q("2.5 mm")))
sketch2.addConstraint(Sketcher.Constraint("DistanceY", 0, 2, -1, 1, Q("27 mm")))
sketch2.setExpression("Constraints[61]", "Params.sketch2_width")
sketch2.setExpression("Constraints[62]", "Params.sketch2_height")
sketch2.setExpression("Constraints[63]", "Params.sketch2_width2")
sketch2.setExpression("Constraints[64]", "Params.sketch2_height2")
pocket1 = body.newObject("PartDesign::Pocket", "Pocket")
pocket1.Profile = sketch2
pocket1.setExpression("Length", "Params.pocket1_length")
pocket1.Reversed = True

doc.recompute()
